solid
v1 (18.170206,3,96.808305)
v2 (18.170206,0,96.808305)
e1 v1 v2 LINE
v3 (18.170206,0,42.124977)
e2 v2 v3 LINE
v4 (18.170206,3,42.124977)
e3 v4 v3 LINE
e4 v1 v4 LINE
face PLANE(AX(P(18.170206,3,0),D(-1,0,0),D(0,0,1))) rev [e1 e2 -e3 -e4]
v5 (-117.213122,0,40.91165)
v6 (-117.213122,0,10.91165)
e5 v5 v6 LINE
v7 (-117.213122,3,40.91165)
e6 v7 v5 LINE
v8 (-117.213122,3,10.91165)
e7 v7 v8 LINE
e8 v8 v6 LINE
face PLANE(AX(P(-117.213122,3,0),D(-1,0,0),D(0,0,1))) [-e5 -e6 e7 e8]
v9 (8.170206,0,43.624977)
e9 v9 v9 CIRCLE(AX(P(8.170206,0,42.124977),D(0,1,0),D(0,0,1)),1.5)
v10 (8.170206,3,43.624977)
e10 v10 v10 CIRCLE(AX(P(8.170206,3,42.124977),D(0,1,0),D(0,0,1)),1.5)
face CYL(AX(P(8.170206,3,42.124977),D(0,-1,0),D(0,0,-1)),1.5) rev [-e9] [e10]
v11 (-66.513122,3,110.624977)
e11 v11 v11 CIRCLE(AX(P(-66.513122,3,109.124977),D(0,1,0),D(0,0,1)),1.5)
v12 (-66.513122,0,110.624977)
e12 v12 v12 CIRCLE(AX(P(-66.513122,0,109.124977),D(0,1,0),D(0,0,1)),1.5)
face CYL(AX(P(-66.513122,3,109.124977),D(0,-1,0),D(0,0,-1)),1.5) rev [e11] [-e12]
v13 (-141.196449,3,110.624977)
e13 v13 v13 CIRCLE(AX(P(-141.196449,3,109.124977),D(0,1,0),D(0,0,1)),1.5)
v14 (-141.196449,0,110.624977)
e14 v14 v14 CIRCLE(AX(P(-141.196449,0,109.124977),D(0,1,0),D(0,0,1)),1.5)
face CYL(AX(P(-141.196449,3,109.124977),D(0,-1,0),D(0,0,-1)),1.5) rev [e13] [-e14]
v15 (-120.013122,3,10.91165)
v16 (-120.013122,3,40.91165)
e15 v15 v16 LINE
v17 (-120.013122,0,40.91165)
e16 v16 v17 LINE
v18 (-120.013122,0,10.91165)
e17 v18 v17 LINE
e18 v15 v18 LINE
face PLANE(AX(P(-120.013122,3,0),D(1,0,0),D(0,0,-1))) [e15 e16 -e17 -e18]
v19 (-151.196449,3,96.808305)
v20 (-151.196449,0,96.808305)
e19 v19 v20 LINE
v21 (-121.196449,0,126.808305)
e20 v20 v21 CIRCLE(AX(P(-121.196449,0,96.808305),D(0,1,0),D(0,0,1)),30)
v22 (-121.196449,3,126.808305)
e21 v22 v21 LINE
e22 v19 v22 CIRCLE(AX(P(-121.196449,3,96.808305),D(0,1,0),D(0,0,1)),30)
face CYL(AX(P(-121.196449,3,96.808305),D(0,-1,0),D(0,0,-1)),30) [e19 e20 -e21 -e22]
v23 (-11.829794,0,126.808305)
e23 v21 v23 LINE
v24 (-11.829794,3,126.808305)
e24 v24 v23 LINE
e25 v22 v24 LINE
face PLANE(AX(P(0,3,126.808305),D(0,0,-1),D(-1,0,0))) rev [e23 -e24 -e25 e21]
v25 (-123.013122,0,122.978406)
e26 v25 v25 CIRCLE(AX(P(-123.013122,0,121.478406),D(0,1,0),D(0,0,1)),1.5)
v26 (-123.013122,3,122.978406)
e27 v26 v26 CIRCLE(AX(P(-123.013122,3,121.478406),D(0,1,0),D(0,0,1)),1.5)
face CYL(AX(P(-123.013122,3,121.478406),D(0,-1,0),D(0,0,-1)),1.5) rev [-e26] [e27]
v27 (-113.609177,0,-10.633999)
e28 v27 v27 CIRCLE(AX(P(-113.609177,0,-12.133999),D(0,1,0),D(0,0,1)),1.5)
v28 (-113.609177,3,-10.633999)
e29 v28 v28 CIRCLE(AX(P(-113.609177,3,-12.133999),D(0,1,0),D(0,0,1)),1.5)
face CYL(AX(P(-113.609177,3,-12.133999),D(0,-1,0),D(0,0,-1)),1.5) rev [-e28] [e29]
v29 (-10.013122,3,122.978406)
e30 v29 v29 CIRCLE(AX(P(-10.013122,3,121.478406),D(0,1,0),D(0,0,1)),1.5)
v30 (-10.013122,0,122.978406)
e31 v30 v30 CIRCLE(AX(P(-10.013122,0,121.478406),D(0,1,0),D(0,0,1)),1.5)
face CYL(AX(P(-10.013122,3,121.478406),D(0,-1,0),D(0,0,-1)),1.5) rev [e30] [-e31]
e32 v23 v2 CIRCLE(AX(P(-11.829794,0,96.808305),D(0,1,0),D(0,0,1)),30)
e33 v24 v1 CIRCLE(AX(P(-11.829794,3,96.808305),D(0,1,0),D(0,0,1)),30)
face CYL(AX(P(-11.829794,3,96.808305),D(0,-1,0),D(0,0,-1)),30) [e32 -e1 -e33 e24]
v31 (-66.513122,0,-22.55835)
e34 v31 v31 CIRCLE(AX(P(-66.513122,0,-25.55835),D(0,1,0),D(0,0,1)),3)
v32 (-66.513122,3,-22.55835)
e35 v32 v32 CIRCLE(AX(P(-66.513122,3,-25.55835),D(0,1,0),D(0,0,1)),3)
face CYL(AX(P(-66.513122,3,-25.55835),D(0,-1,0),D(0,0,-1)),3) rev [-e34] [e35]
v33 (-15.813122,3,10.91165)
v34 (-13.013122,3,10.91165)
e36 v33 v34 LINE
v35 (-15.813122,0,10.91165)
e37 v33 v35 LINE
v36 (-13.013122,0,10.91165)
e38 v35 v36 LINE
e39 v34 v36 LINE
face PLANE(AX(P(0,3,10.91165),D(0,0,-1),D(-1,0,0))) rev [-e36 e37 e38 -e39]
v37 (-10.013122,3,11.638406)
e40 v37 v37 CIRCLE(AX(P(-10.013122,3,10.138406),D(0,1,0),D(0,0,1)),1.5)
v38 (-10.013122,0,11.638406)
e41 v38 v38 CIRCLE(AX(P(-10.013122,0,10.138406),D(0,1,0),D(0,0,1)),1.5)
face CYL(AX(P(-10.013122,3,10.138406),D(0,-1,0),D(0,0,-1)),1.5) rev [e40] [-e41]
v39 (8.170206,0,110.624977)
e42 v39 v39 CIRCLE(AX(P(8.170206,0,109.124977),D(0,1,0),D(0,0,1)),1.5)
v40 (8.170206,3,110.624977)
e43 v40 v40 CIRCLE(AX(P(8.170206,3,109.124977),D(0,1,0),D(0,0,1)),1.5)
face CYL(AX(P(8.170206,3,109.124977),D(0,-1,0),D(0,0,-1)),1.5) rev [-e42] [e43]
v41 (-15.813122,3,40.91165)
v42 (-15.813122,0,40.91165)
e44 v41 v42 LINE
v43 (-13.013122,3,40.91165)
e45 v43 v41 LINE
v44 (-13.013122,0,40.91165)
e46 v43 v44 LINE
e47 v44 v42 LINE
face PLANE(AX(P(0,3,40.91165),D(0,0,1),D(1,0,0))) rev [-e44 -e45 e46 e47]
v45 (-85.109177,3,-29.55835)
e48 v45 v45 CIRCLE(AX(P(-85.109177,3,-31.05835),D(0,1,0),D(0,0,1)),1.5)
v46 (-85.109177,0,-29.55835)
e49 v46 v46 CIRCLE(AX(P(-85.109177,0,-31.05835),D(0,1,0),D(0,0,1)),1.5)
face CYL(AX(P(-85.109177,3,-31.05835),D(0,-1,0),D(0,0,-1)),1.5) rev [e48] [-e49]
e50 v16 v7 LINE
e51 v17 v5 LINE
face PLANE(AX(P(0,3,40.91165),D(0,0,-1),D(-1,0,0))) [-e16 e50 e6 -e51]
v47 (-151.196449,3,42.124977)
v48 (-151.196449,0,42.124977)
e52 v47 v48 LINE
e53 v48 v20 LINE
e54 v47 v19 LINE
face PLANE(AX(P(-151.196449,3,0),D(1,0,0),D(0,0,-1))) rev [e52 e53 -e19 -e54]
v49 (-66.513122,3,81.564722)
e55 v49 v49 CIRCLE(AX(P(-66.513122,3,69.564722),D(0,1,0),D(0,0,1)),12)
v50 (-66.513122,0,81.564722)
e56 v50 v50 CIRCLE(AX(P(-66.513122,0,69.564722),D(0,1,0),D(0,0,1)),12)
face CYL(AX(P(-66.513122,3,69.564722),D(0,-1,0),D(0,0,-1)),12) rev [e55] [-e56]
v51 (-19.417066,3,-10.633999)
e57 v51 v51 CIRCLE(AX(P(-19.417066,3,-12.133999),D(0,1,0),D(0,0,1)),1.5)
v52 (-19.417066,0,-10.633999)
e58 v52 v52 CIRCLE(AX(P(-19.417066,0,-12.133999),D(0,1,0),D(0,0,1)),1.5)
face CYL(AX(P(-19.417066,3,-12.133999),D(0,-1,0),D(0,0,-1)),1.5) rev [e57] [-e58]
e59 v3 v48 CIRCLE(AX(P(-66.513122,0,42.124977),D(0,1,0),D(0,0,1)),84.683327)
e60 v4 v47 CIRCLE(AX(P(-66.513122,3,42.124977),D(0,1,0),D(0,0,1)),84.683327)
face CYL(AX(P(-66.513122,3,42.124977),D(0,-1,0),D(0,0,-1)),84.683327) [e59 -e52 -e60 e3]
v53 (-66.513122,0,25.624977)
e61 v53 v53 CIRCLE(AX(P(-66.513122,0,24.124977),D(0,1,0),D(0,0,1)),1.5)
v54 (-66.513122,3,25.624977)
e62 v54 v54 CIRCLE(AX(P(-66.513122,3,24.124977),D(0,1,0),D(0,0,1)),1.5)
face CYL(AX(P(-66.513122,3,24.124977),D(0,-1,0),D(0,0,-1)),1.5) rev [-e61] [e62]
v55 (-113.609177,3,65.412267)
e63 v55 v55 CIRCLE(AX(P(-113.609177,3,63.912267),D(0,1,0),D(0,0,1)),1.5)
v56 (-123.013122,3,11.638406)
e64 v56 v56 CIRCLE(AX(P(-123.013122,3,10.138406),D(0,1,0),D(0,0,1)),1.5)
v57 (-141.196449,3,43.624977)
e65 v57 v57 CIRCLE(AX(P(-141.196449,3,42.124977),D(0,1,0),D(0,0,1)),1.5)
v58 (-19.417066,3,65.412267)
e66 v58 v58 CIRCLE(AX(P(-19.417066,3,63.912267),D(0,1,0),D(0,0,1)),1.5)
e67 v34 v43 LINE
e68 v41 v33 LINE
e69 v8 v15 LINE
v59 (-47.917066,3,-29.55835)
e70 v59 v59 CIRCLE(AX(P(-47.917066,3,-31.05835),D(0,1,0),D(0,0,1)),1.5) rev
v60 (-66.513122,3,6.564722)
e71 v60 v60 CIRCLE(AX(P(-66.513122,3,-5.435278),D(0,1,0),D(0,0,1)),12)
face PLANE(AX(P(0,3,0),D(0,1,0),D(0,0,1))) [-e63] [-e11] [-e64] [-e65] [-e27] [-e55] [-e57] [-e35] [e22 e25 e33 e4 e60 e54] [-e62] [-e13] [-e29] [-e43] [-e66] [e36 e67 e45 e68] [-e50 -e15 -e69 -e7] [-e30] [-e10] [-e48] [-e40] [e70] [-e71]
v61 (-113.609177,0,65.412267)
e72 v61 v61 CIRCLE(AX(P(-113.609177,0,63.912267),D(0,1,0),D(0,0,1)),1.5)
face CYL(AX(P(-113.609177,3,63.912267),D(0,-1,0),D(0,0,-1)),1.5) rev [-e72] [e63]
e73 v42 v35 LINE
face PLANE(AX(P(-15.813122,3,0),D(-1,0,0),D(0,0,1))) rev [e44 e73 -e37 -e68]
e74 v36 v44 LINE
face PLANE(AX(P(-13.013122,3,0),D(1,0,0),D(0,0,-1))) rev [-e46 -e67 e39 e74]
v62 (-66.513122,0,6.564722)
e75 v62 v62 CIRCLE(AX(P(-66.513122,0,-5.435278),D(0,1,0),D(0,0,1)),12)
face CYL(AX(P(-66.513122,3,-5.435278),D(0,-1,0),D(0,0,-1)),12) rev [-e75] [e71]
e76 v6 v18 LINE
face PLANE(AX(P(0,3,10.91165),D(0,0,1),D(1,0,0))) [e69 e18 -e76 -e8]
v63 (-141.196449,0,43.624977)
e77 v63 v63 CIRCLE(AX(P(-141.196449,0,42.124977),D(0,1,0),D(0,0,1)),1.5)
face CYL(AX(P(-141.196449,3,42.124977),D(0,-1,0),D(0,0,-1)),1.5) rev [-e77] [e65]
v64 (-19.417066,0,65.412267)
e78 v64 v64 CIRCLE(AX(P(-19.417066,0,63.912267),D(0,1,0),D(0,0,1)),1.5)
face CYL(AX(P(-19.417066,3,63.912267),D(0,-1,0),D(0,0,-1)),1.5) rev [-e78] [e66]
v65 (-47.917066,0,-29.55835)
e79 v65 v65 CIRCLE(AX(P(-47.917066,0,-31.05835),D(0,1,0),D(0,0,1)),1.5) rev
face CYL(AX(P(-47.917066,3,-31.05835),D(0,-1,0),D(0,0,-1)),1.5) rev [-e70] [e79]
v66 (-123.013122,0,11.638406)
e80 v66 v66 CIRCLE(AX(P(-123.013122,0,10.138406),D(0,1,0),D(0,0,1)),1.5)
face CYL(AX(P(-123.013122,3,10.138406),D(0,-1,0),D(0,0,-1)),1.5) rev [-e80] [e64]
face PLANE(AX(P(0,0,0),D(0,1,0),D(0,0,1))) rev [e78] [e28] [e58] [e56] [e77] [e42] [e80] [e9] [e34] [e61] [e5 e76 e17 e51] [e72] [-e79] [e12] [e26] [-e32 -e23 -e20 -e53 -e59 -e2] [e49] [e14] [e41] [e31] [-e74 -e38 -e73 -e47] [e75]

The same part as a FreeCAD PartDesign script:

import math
import FreeCAD as App
import Part
import Sketcher
from FreeCAD import Vector
Q = App.Units.Quantity


def add_polygon(sketch, points):
    """Adds a closed chain of lines whose ends are joined by coincident constraints."""
    first, n = sketch.GeometryCount, len(points)
    for a, b in zip(points, points[1:] + points[:1]):
        sketch.addGeometry(Part.LineSegment(App.Vector(*a, 0), App.Vector(*b, 0)), False)
    for i in range(n):
        sketch.addConstraint(Sketcher.Constraint("Coincident", first + i, 2, first + (i + 1) % n, 1))

doc = App.newDocument("Part")
body = doc.addObject("PartDesign::Body", "Body")

# Sketch on XZ plane
sketch1 = body.newObject("Sketcher::SketchObject", "Sketch")
sketch1.AttachmentSupport = (doc.getObject("XZ_Plane"), [""])
sketch1.MapMode = "FlatFace"
sketch1.addGeometry(Part.LineSegment(Vector(-121.2, 126.8, 0), Vector(-11.8, 126.8, 0)), False)  # 0
sketch1.addGeometry(Part.ArcOfCircle(Part.Circle(Vector(-11.8, 96.8, 0), Vector(0, 0, 1), 30), math.radians(0), math.radians(90)), False)  # 1
sketch1.addGeometry(Part.LineSegment(Vector(18.2, 96.8, 0), Vector(18.2, 42.1, 0)), False)  # 2
sketch1.addGeometry(Part.ArcOfCircle(Part.Circle(Vector(-66.5, 42.1, 0), Vector(0, 0, 1), 84.7), math.radians(180), math.radians(360)), False)  # 3
sketch1.addGeometry(Part.LineSegment(Vector(-151.2, 42.1, 0), Vector(-151.2, 96.8, 0)), False)  # 4
sketch1.addGeometry(Part.ArcOfCircle(Part.Circle(Vector(-121.2, 96.8, 0), Vector(0, 0, 1), 30), math.radians(90), math.radians(180)), False)  # 5
sketch1.addGeometry(Part.Circle(Vector(-141.2, 109.1, 0), Vector(0, 0, 1), 1.5), False)  # 6
sketch1.addGeometry(Part.Circle(Vector(-123, 121.5, 0), Vector(0, 0, 1), 1.5), False)  # 7
sketch1.addGeometry(Part.Circle(Vector(-66.5, 109.1, 0), Vector(0, 0, 1), 1.5), False)  # 8
sketch1.addGeometry(Part.Circle(Vector(-113.6, 63.9, 0), Vector(0, 0, 1), 1.5), False)  # 9
sketch1.addGeometry(Part.Circle(Vector(-66.5, 69.6, 0), Vector(0, 0, 1), 12), False)  # 10
sketch1.addGeometry(Part.Circle(Vector(-10, 121.5, 0), Vector(0, 0, 1), 1.5), False)  # 11
sketch1.addGeometry(Part.Circle(Vector(8.2, 109.1, 0), Vector(0, 0, 1), 1.5), False)  # 12
sketch1.addGeometry(Part.Circle(Vector(-19.4, 63.9, 0), Vector(0, 0, 1), 1.5), False)  # 13
sketch1.addGeometry(Part.Circle(Vector(-141.2, 42.1, 0), Vector(0, 0, 1), 1.5), False)  # 14
add_polygon(sketch1, [(-117.2, 40.9), (-120, 40.9), (-120, 10.9), (-117.2, 10.9)])  # lines 15-18
sketch1.addGeometry(Part.Circle(Vector(-123, 10.1, 0), Vector(0, 0, 1), 1.5), False)  # 19
sketch1.addGeometry(Part.Circle(Vector(-66.5, 24.1, 0), Vector(0, 0, 1), 1.5), False)  # 20
sketch1.addGeometry(Part.Circle(Vector(-113.6, -12.1, 0), Vector(0, 0, 1), 1.5), False)  # 21
sketch1.addGeometry(Part.Circle(Vector(-66.5, -5.4, 0), Vector(0, 0, 1), 12), False)  # 22
sketch1.addGeometry(Part.Circle(Vector(-85.1, -31.1, 0), Vector(0, 0, 1), 1.5), False)  # 23
sketch1.addGeometry(Part.Circle(Vector(-66.5, -25.6, 0), Vector(0, 0, 1), 3), False)  # 24
add_polygon(sketch1, [(-13, 40.9), (-15.8, 40.9), (-15.8, 10.9), (-13, 10.9)])  # lines 25-28
sketch1.addGeometry(Part.Circle(Vector(8.2, 42.1, 0), Vector(0, 0, 1), 1.5), False)  # 29
sketch1.addGeometry(Part.Circle(Vector(-10, 10.1, 0), Vector(0, 0, 1), 1.5), False)  # 30
sketch1.addGeometry(Part.Circle(Vector(-47.9, -31.1, 0), Vector(0, 0, 1), 1.5), False)  # 31
sketch1.addGeometry(Part.Circle(Vector(-19.4, -12.1, 0), Vector(0, 0, 1), 1.5), False)  # 32
sketch1.addConstraint(Sketcher.Constraint("Tangent", 0, 2, 1, 2))
sketch1.addConstraint(Sketcher.Constraint("Tangent", 1, 1, 2, 1))
sketch1.addConstraint(Sketcher.Constraint("Tangent", 2, 2, 3, 2))
sketch1.addConstraint(Sketcher.Constraint("Tangent", 3, 1, 4, 1))
sketch1.addConstraint(Sketcher.Constraint("Tangent", 4, 2, 5, 2))
sketch1.addConstraint(Sketcher.Constraint("Tangent", 5, 1, 0, 1))
sketch1.addConstraint(Sketcher.Constraint("Horizontal", 0))
sketch1.addConstraint(Sketcher.Constraint("Vertical", 2))
sketch1.addConstraint(Sketcher.Constraint("Vertical", 4))
sketch1.addConstraint(Sketcher.Constraint("Horizontal", 15))
sketch1.addConstraint(Sketcher.Constraint("Vertical", 16))
sketch1.addConstraint(Sketcher.Constraint("Horizontal", 17))
sketch1.addConstraint(Sketcher.Constraint("Vertical", 18))
sketch1.addConstraint(Sketcher.Constraint("Horizontal", 25))
sketch1.addConstraint(Sketcher.Constraint("Vertical", 26))
sketch1.addConstraint(Sketcher.Constraint("Horizontal", 27))
sketch1.addConstraint(Sketcher.Constraint("Vertical", 28))
sketch1.addConstraint(Sketcher.Constraint("Equal", 1, 5))
sketch1.addConstraint(Sketcher.Constraint("Equal", 6, 7))
sketch1.addConstraint(Sketcher.Constraint("Equal", 7, 8))
sketch1.addConstraint(Sketcher.Constraint("Equal", 8, 9))
sketch1.addConstraint(Sketcher.Constraint("Equal", 9, 11))
sketch1.addConstraint(Sketcher.Constraint("Equal", 11, 12))
sketch1.addConstraint(Sketcher.Constraint("Equal", 12, 13))
sketch1.addConstraint(Sketcher.Constraint("Equal", 13, 14))
sketch1.addConstraint(Sketcher.Constraint("Equal", 14, 19))
sketch1.addConstraint(Sketcher.Constraint("Equal", 19, 20))
sketch1.addConstraint(Sketcher.Constraint("Equal", 20, 21))
sketch1.addConstraint(Sketcher.Constraint("Equal", 10, 22))
sketch1.addConstraint(Sketcher.Constraint("Equal", 21, 23))
sketch1.addConstraint(Sketcher.Constraint("Equal", 23, 29))
sketch1.addConstraint(Sketcher.Constraint("Equal", 29, 30))
sketch1.addConstraint(Sketcher.Constraint("Equal", 30, 31))
sketch1.addConstraint(Sketcher.Constraint("Equal", 31, 32))
sketch1.addConstraint(Sketcher.Constraint("Horizontal", 6, 3, 8, 3))
sketch1.addConstraint(Sketcher.Constraint("Horizontal", 7, 3, 11, 3))
sketch1.addConstraint(Sketcher.Constraint("Horizontal", 8, 3, 12, 3))
sketch1.addConstraint(Sketcher.Constraint("Horizontal", 9, 3, 13, 3))
sketch1.addConstraint(Sketcher.Constraint("Horizontal", 3, 3, 14, 3))
sketch1.addConstraint(Sketcher.Constraint("Horizontal", 14, 3, 29, 3))
sketch1.addConstraint(Sketcher.Constraint("Horizontal", 19, 3, 30, 3))
sketch1.addConstraint(Sketcher.Constraint("Horizontal", 23, 3, 31, 3))
sketch1.addConstraint(Sketcher.Constraint("Horizontal", 21, 3, 32, 3))
sketch1.addConstraint(Sketcher.Constraint("Horizontal", 18, 2, 25, 2))
sketch1.addConstraint(Sketcher.Constraint("Horizontal", 17, 2, 26, 2))
sketch1.addConstraint(Sketcher.Constraint("Vertical", 3, 3, 8, 3))
sketch1.addConstraint(Sketcher.Constraint("Vertical", 8, 3, 10, 3))
sketch1.addConstraint(Sketcher.Constraint("Vertical", 6, 3, 14, 3))
sketch1.addConstraint(Sketcher.Constraint("Vertical", 7, 3, 19, 3))
sketch1.addConstraint(Sketcher.Constraint("Vertical", 10, 3, 20, 3))
sketch1.addConstraint(Sketcher.Constraint("Vertical", 9, 3, 21, 3))
sketch1.addConstraint(Sketcher.Constraint("Vertical", 20, 3, 22, 3))
sketch1.addConstraint(Sketcher.Constraint("Vertical", 22, 3, 24, 3))
sketch1.addConstraint(Sketcher.Constraint("Vertical", 12, 3, 29, 3))
sketch1.addConstraint(Sketcher.Constraint("Vertical", 11, 3, 30, 3))
sketch1.addConstraint(Sketcher.Constraint("Vertical", 13, 3, 32, 3))
sketch1.addConstraint(Sketcher.Constraint("Equal", 17, 25))
sketch1.addConstraint(Sketcher.Constraint("Diameter", 6, Q("3 mm")))
sketch1.addConstraint(Sketcher.Constraint("Diameter", 10, Q("24 mm")))
sketch1.addConstraint(Sketcher.Constraint("Diameter", 24, Q("6 mm")))
sketch1.addConstraint(Sketcher.Constraint("Radius", 1, Q("30 mm")))
sketch1.addConstraint(Sketcher.Constraint("DistanceY", 16, 2, 16, 1, Q("30 mm")))
sketch1.addConstraint(Sketcher.Constraint("DistanceX", 15, 2, 15, 1, Q("2.8 mm")))
sketch1.addConstraint(Sketcher.Constraint("DistanceX", 6, 3, 5, 3, Q("20 mm")))
sketch1.addConstraint(Sketcher.Constraint("DistanceY", 3, 3, 6, 3, Q("67 mm")))
sketch1.addConstraint(Sketcher.Constraint("DistanceX", 7, 3, 11, 3, Q("113 mm")))
sketch1.addConstraint(Sketcher.Constraint("DistanceX", 1, 3, 12, 3, Q("20 mm")))
sketch1.addConstraint(Sketcher.Constraint("DistanceY", 20, 3, 3, 3, Q("18 mm")))
sketch1.addConstraint(Sketcher.Constraint("DistanceY", 22, 3, 10, 3, Q("75 mm")))
sketch1.addConstraint(Sketcher.Constraint("DistanceX", 19, 3, 15, 2, Q("3 mm")))
sketch1.addConstraint(Sketcher.Constraint("DistanceX", 27, 2, 30, 3, Q("3 mm")))
sketch1.addConstraint(Sketcher.Constraint("DistanceX", 7, 3, 3, 3, Q("56.5 mm")))
sketch1.addConstraint(Sketcher.Constraint("DistanceX", 21, 3, 23, 3, Q("28.5 mm")))
sketch1.addConstraint(Sketcher.Constraint("DistanceY", 23, 3, 24, 3, Q("5.5 mm")))
sketch1.addConstraint(Sketcher.Constraint("DistanceX", 31, 3, 32, 3, Q("28.5 mm")))
sketch1.addConstraint(Sketcher.Constraint("DistanceY", 21, 3, -1, 1, Q("12.133999 mm")))
sketch1.addConstraint(Sketcher.Constraint("Radius", 3, Q("84.683327 mm")))
sketch1.addConstraint(Sketcher.Constraint("DistanceY", 5, 3, 7, 3, Q("24.670102 mm")))
sketch1.addConstraint(Sketcher.Constraint("DistanceY", 19, 3, 5, 3, Q("86.669898 mm")))
sketch1.addConstraint(Sketcher.Constraint("DistanceY", 2, 2, 2, 1, Q("54.683327 mm")))
sketch1.addConstraint(Sketcher.Constraint("DistanceX", 3, 3, -1, 1, Q("66.513122 mm")))
sketch1.addConstraint(Sketcher.Constraint("DistanceY", -1, 1, 10, 3, Q("69.564722 mm")))
sketch1.addConstraint(Sketcher.Constraint("DistanceY", 23, 3, -1, 1, Q("31.05835 mm")))
sketch1.addConstraint(Sketcher.Constraint("DistanceY", -1, 1, 15, 2, Q("40.91165 mm")))
sketch1.addConstraint(Sketcher.Constraint("DistanceY", 3, 3, 9, 3, Q("21.78729 mm")))
sketch1.addConstraint(Sketcher.Constraint("DistanceX", 23, 3, 31, 3, Q("37.192111 mm")))
sketch1.addConstraint(Sketcher.Constraint("DistanceY", -1, 1, 1, 3, Q("96.808305 mm")))
sketch1.addConstraint(Sketcher.Constraint("DistanceX", 9, 3, -1, 1, Q("113.609177 mm")))
pad1 = body.newObject("PartDesign::Pad", "Pad")
pad1.Profile = sketch1
pad1.Length = 3
pad1.Reversed = True

doc.recompute()
